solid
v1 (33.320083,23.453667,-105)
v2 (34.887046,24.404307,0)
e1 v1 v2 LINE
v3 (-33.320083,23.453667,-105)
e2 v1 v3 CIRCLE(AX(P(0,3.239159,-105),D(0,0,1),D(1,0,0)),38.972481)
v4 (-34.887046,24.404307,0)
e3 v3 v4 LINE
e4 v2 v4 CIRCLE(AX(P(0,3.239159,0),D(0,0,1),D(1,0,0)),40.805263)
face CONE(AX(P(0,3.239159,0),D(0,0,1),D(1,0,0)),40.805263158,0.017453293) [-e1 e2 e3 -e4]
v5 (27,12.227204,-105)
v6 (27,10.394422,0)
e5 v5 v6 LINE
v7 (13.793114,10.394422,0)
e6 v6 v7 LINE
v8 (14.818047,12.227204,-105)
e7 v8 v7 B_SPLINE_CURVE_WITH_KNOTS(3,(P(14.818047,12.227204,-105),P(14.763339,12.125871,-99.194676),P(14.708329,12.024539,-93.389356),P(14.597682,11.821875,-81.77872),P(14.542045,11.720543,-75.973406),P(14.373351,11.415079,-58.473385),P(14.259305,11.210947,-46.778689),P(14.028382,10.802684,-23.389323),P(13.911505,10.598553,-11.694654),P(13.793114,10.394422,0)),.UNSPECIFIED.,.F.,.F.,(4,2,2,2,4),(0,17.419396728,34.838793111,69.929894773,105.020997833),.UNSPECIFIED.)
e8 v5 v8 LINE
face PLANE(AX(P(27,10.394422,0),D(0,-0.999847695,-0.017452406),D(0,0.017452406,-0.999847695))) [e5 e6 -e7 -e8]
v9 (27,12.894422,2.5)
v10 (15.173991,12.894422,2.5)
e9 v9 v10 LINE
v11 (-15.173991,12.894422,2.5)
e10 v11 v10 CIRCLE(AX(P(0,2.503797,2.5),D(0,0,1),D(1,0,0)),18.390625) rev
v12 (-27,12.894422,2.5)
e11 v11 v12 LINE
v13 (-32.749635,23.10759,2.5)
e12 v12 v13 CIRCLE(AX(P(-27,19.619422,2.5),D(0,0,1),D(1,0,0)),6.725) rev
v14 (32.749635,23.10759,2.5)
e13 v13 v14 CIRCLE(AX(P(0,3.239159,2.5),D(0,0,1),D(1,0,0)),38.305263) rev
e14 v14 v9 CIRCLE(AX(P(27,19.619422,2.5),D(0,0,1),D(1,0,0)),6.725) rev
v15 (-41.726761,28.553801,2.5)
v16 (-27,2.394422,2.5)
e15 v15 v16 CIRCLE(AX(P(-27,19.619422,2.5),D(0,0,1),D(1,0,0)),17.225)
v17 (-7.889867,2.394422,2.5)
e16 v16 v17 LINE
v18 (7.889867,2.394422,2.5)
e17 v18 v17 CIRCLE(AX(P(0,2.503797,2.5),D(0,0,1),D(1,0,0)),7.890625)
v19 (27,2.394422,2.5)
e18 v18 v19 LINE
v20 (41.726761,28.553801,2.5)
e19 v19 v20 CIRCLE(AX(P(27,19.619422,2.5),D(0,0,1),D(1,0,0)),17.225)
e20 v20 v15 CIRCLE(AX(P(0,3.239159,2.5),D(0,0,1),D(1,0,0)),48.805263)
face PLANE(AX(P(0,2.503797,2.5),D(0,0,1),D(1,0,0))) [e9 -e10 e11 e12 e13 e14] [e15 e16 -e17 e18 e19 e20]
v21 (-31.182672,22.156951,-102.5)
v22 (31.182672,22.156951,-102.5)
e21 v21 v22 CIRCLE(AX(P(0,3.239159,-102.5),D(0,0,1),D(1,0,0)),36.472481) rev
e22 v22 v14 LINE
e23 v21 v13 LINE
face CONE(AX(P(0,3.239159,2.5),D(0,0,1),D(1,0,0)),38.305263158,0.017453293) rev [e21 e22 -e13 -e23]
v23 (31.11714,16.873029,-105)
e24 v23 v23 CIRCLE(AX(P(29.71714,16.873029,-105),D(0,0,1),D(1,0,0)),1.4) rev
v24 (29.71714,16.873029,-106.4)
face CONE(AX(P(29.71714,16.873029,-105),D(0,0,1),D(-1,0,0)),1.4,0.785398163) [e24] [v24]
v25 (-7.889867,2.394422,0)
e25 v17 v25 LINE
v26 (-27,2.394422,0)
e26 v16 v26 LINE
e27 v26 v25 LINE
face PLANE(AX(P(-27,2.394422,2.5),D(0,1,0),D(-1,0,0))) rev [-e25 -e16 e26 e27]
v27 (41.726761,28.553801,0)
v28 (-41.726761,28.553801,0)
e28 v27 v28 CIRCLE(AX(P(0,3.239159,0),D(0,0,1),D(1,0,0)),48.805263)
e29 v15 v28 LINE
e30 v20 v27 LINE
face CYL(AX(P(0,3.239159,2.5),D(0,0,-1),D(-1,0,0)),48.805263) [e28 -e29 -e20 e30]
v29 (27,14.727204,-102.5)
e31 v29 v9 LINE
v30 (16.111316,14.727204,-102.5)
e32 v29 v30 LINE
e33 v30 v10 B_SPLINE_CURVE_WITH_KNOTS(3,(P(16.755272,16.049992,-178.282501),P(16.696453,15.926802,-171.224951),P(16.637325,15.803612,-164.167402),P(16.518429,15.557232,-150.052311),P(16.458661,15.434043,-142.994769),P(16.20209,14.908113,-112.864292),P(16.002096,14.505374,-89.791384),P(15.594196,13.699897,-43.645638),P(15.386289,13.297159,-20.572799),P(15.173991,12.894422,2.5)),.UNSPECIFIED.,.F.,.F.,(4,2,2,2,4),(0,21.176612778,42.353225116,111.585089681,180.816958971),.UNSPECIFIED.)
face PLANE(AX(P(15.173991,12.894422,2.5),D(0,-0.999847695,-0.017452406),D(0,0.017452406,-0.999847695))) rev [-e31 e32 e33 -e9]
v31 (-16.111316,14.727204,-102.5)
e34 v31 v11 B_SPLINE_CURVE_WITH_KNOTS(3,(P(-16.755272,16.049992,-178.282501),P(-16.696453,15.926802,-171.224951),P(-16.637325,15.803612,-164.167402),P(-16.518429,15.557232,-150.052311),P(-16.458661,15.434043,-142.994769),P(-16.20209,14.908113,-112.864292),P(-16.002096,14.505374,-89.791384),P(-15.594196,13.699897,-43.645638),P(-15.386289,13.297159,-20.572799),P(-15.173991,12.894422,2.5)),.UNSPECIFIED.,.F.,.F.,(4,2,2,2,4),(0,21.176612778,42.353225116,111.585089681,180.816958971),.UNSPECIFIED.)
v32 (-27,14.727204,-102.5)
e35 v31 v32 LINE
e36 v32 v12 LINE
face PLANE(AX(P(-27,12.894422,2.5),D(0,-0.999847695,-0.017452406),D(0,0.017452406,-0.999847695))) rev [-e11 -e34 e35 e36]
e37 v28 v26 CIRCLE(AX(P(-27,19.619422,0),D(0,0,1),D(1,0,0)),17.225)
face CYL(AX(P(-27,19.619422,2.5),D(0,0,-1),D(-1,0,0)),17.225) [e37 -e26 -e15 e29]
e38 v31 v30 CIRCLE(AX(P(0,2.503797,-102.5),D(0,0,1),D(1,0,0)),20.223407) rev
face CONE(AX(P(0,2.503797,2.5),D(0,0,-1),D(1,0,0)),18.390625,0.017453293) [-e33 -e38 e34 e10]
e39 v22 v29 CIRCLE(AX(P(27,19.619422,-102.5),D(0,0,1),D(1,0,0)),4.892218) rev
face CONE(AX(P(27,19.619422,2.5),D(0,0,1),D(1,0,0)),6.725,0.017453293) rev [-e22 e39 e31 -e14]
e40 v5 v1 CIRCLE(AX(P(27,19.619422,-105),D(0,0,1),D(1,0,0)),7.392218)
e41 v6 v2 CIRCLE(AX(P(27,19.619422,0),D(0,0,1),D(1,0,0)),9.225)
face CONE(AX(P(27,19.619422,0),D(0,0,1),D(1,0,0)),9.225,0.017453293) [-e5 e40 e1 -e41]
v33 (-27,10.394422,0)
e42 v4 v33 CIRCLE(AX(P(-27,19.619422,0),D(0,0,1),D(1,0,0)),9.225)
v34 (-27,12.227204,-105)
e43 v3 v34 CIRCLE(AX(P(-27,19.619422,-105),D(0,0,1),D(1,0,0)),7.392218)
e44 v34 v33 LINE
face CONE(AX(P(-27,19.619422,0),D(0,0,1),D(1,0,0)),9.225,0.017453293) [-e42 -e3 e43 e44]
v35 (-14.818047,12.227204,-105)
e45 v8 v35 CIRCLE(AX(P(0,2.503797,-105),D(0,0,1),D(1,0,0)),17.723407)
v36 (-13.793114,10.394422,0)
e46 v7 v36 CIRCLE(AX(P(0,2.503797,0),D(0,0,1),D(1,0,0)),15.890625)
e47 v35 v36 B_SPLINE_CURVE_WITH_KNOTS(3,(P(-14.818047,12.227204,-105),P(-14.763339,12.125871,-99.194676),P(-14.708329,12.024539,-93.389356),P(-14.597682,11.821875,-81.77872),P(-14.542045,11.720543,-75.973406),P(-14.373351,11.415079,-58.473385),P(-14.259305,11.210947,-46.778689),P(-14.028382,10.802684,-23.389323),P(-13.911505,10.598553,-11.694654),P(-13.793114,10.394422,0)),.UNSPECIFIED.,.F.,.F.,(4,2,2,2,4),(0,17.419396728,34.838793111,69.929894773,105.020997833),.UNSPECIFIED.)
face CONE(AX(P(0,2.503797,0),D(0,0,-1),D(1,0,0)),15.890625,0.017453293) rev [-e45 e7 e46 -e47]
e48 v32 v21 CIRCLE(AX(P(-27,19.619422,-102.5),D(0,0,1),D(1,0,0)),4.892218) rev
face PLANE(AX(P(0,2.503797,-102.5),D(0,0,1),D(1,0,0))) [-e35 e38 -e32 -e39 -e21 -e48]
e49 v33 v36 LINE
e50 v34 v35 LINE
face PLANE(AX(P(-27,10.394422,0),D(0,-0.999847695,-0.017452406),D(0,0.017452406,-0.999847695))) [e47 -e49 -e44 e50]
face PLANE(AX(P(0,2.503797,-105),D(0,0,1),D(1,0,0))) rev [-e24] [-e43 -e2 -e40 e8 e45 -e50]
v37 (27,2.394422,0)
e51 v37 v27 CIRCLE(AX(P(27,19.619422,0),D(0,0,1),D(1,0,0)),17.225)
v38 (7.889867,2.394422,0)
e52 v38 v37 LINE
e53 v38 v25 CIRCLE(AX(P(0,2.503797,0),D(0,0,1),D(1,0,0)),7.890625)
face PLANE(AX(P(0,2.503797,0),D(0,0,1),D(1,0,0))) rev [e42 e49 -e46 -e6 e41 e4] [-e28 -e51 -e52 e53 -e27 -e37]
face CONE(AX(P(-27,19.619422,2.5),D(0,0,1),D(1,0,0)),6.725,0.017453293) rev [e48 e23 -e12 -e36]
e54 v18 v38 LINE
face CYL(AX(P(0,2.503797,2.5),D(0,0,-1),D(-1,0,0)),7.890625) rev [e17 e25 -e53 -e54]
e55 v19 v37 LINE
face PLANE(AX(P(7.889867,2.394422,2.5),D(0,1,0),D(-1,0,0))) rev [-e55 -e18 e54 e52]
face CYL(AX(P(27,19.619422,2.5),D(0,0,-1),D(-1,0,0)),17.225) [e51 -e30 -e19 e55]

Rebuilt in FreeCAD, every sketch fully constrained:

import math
import FreeCAD as App
import Part
import Sketcher
Q = App.Units.Quantity


def faces_at(feature, points):
    """Names of the faces that lie closest to the given points."""
    faces = feature.Shape.Faces
    near = lambda p: min(range(len(faces)), key=lambda i: faces[i].distToShape(Part.Vertex(*p))[0])
    return sorted({f"Face{near(p) + 1}" for p in points})


def add_polygon(sketch, points):
    """Adds a closed chain of lines whose ends are joined by coincident constraints."""
    first, n = sketch.GeometryCount, len(points)
    for a, b in zip(points, points[1:] + points[:1]):
        sketch.addGeometry(Part.LineSegment(App.Vector(*a, 0), App.Vector(*b, 0)), False)
    for i in range(n):
        sketch.addConstraint(Sketcher.Constraint("Coincident", first + i, 2, first + (i + 1) % n, 1))

doc = App.newDocument("Part")
body = doc.addObject("PartDesign::Body", "Body")

# Sketch on XY plane
sketch1 = body.newObject("Sketcher::SketchObject", "Sketch")
sketch1.AttachmentSupport = (doc.getObject("XY_Plane"), [""])
sketch1.MapMode = "FlatFace"
sketch1.addGeometry(Part.ArcOfCircle(Part.Circle(App.Vector(27, 19.619422, 0), App.Vector(0, 0, 1), 9.225), math.radians(-90), math.radians(31.244201)), False)
sketch1.addGeometry(Part.ArcOfCircle(Part.Circle(App.Vector(0, 3.239159, 0), App.Vector(0, 0, 1), 40.805263), math.radians(31.244201), math.radians(148.755799)), False)
sketch1.addGeometry(Part.ArcOfCircle(Part.Circle(App.Vector(-27, 19.619422, 0), App.Vector(0, 0, 1), 9.225), math.radians(148.755799), math.radians(270)), False)
sketch1.addGeometry(Part.LineSegment(App.Vector(-27, 10.394422, 0), App.Vector(-13.793114, 10.394422, 0)), False)
sketch1.addGeometry(Part.ArcOfCircle(Part.Circle(App.Vector(0, 2.503797, 0), App.Vector(0, 0, 1), 15.890625), math.radians(29.772573), math.radians(150.227427)), False)
sketch1.addGeometry(Part.LineSegment(App.Vector(13.793114, 10.394422, 0), App.Vector(27, 10.394422, 0)), False)
sketch1.addConstraint(Sketcher.Constraint("Tangent", 0, 2, 1, 1))
sketch1.addConstraint(Sketcher.Constraint("Tangent", 1, 2, 2, 1))
sketch1.addConstraint(Sketcher.Constraint("Tangent", 2, 2, 3, 1))
sketch1.addConstraint(Sketcher.Constraint("Coincident", 3, 2, 4, 2))
sketch1.addConstraint(Sketcher.Constraint("Coincident", 4, 1, 5, 1))
sketch1.addConstraint(Sketcher.Constraint("Tangent", 5, 2, 0, 1))
sketch1.addConstraint(Sketcher.Constraint("Horizontal", 3))
sketch1.addConstraint(Sketcher.Constraint("Horizontal", 5))
sketch1.addConstraint(Sketcher.Constraint("Equal", 0, 2))
sketch1.addConstraint(Sketcher.Constraint("Symmetric", 0, 3, 2, 3, -2))
sketch1.addConstraint(Sketcher.Constraint("PointOnObject", 4, 3, -2))
sketch1.addConstraint(Sketcher.Constraint("DistanceX", -1, 1, 0, 3, Q("27 mm")))
sketch1.addConstraint(Sketcher.Constraint("Radius", 0, Q("9.225 mm")))
sketch1.addConstraint(Sketcher.Constraint("Radius", 1, Q("40.805263 mm")))
sketch1.addConstraint(Sketcher.Constraint("Radius", 4, Q("15.890625 mm")))
sketch1.addConstraint(Sketcher.Constraint("DistanceX", 3, 1, 3, 2, Q("13.206886 mm")))
sketch1.addConstraint(Sketcher.Constraint("DistanceY", -1, 1, 0, 3, Q("19.619422 mm")))
pad1 = body.newObject("PartDesign::Pad", "Pad")
pad1.Profile = sketch1
pad1.Length = 105
pad1.Reversed = True
doc.recompute()

draft = body.newObject("PartDesign::Draft", "Draft")
draft.Base = (pad1, faces_at(pad1, [
    (20.397, 10.394, -52.5),
    (35.039, 15.094, -52.5),
    (0, 44.044, -52.5),
    (-35.039, 15.094, -52.5),
    (-20.397, 10.394, -52.5),
    (0, 18.394, -52.5),
]))
draft.NeutralPlane = (doc.getObject("XY_Plane"), [""])
draft.Angle = 1
draft.Reversed = True

# Sketch on XY plane
sketch2 = body.newObject("Sketcher::SketchObject", "Sketch001")
sketch2.AttachmentSupport = (doc.getObject("XY_Plane"), [""])
sketch2.MapMode = "FlatFace"
sketch2.addGeometry(Part.LineSegment(App.Vector(7.889867, 2.394422, 0), App.Vector(27, 2.394422, 0)), False)
sketch2.addGeometry(Part.ArcOfCircle(Part.Circle(App.Vector(27, 19.619422, 0), App.Vector(0, 0, 1), 17.225), math.radians(-90), math.radians(31.244201)), False)
sketch2.addGeometry(Part.ArcOfCircle(Part.Circle(App.Vector(0, 3.239159, 0), App.Vector(0, 0, 1), 48.805263), math.radians(31.244201), math.radians(148.755799)), False)
sketch2.addGeometry(Part.ArcOfCircle(Part.Circle(App.Vector(-27, 19.619422, 0), App.Vector(0, 0, 1), 17.225), math.radians(148.755799), math.radians(270)), False)
sketch2.addGeometry(Part.LineSegment(App.Vector(-27, 2.394422, 0), App.Vector(-7.889867, 2.394422, 0)), False)
sketch2.addGeometry(Part.ArcOfCircle(Part.Circle(App.Vector(0, 2.503797, 0), App.Vector(0, 0, 1), 7.890625), math.radians(-0.794224), math.radians(180.794224)), False)
sketch2.addConstraint(Sketcher.Constraint("Tangent", 0, 2, 1, 1))
sketch2.addConstraint(Sketcher.Constraint("Tangent", 1, 2, 2, 1))
sketch2.addConstraint(Sketcher.Constraint("Tangent", 2, 2, 3, 1))
sketch2.addConstraint(Sketcher.Constraint("Tangent", 3, 2, 4, 1))
sketch2.addConstraint(Sketcher.Constraint("Coincident", 4, 2, 5, 2))
sketch2.addConstraint(Sketcher.Constraint("Coincident", 5, 1, 0, 1))
sketch2.addConstraint(Sketcher.Constraint("Horizontal", 0))
sketch2.addConstraint(Sketcher.Constraint("Horizontal", 4))
sketch2.addConstraint(Sketcher.Constraint("Equal", 1, 3))
sketch2.addConstraint(Sketcher.Constraint("Symmetric", 1, 3, 3, 3, -2))
sketch2.addConstraint(Sketcher.Constraint("PointOnObject", 5, 3, -2))
sketch2.addConstraint(Sketcher.Constraint("DistanceX", -1, 1, 1, 3, Q("27 mm")))
sketch2.addConstraint(Sketcher.Constraint("Radius", 1, Q("17.225 mm")))
sketch2.addConstraint(Sketcher.Constraint("Radius", 2, Q("48.805263 mm")))
sketch2.addConstraint(Sketcher.Constraint("Radius", 5, Q("7.890625 mm")))
sketch2.addConstraint(Sketcher.Constraint("DistanceY", -1, 1, 1, 2, Q("28.553801 mm")))
sketch2.addConstraint(Sketcher.Constraint("DistanceX", 0, 1, 0, 2, Q("19.110133 mm")))
pad2 = body.newObject("PartDesign::Pad", "Pad001")
pad2.Profile = sketch2
pad2.Length = 2.5
body2 = doc.addObject("PartDesign::Body", "Body001")

# Sketch on XY plane
sketch3 = body2.newObject("Sketcher::SketchObject", "Sketch002")
sketch3.AttachmentSupport = (doc.getObject("XY_Plane001"), [""])
sketch3.MapMode = "FlatFace"
sketch3.AttachmentOffset = App.Placement(App.Vector(0, 0, 2.5), App.Rotation())
sketch3.addGeometry(Part.LineSegment(App.Vector(-27, 12.894422, 0), App.Vector(-15.173991, 12.894422, 0)), False)
sketch3.addGeometry(Part.ArcOfCircle(Part.Circle(App.Vector(0, 2.503797, 0), App.Vector(0, 0, 1), 18.390625), math.radians(34.401996), math.radians(145.598004)), False)
sketch3.addGeometry(Part.LineSegment(App.Vector(15.173991, 12.894422, 0), App.Vector(27, 12.894422, 0)), False)
sketch3.addGeometry(Part.ArcOfCircle(Part.Circle(App.Vector(27, 19.619422, 0), App.Vector(0, 0, 1), 6.725), math.radians(-90), math.radians(31.244201)), False)
sketch3.addGeometry(Part.ArcOfCircle(Part.Circle(App.Vector(0, 3.239159, 0), App.Vector(0, 0, 1), 38.305263), math.radians(31.244201), math.radians(148.755799)), False)
sketch3.addGeometry(Part.ArcOfCircle(Part.Circle(App.Vector(-27, 19.619422, 0), App.Vector(0, 0, 1), 6.725), math.radians(148.755799), math.radians(270)), False)
sketch3.addConstraint(Sketcher.Constraint("Coincident", 0, 2, 1, 2))
sketch3.addConstraint(Sketcher.Constraint("Coincident", 1, 1, 2, 1))
sketch3.addConstraint(Sketcher.Constraint("Tangent", 2, 2, 3, 1))
sketch3.addConstraint(Sketcher.Constraint("Tangent", 3, 2, 4, 1))
sketch3.addConstraint(Sketcher.Constraint("Tangent", 4, 2, 5, 1))
sketch3.addConstraint(Sketcher.Constraint("Tangent", 5, 2, 0, 1))
sketch3.addConstraint(Sketcher.Constraint("Horizontal", 0))
sketch3.addConstraint(Sketcher.Constraint("Horizontal", 2))
sketch3.addConstraint(Sketcher.Constraint("Equal", 3, 5))
sketch3.addConstraint(Sketcher.Constraint("Symmetric", 3, 3, 5, 3, -2))
sketch3.addConstraint(Sketcher.Constraint("PointOnObject", 1, 3, -2))
sketch3.addConstraint(Sketcher.Constraint("DistanceX", -1, 1, 3, 3, Q("27 mm")))
sketch3.addConstraint(Sketcher.Constraint("Radius", 3, Q("6.725 mm")))
sketch3.addConstraint(Sketcher.Constraint("Radius", 1, Q("18.390625 mm")))
sketch3.addConstraint(Sketcher.Constraint("Radius", 4, Q("38.305263 mm")))
sketch3.addConstraint(Sketcher.Constraint("DistanceX", 0, 1, 0, 2, Q("11.826009 mm")))
sketch3.addConstraint(Sketcher.Constraint("DistanceY", -1, 1, 3, 3, Q("19.619422 mm")))
pad3 = body2.newObject("PartDesign::Pad", "Pad002")
pad3.Profile = sketch3
pad3.Length = 105
pad3.Reversed = True
doc.recompute()

datumplane = body2.newObject("PartDesign::Plane", "DatumPlane")
datumplane.AttachmentSupport = (doc.getObject("XY_Plane001"), [""])
datumplane.MapMode = "FlatFace"
datumplane.AttachmentOffset = App.Placement(App.Vector(0, 0, 2.5), App.Rotation())
draft2 = body2.newObject("PartDesign::Draft", "Draft001")
draft2.Base = (pad3, faces_at(pad3, [
    (-21.087, 12.894, -50),
    (0, 20.894, -50),
    (21.087, 12.894, -50),
    (32.86, 16.32, -50),
    (0, 41.544, -50),
    (-32.86, 16.32, -50),
]))
draft2.NeutralPlane = (datumplane, [""])
draft2.Angle = 1
draft2.Reversed = True
doc.recompute()

boolean = body.newObject("PartDesign::Boolean", "Boolean")
boolean.Type = "Cut"
boolean.addObjects([body2])

# Sketch on YZ plane
sketch4 = body.newObject("Sketcher::SketchObject", "Sketch003")
sketch4.AttachmentSupport = (doc.getObject("YZ_Plane"), [""])
sketch4.MapMode = "FlatFace"
sketch4.AttachmentOffset = App.Placement(App.Vector(0, 0, 29.71714), App.Rotation())
add_polygon(sketch4, [(16.873029, -105), (15.473029, -105), (16.873029, -106.4)])  # lines 0-2
sketch4.addGeometry(Part.LineSegment(App.Vector(16.873029, -105, 0), App.Vector(16.873029, -106.4, 0)), True)  # axis
sketch4.addConstraint(Sketcher.Constraint("Horizontal", 0))
sketch4.addConstraint(Sketcher.Constraint("Vertical", 2))
sketch4.addConstraint(Sketcher.Constraint("Vertical", 3))
sketch4.addConstraint(Sketcher.Constraint("Coincident", 3, 1, 2, 2))
sketch4.addConstraint(Sketcher.Constraint("Equal", 0, 2))
sketch4.addConstraint(Sketcher.Constraint("Equal", 2, 3))
sketch4.addConstraint(Sketcher.Constraint("DistanceX", 0, 2, 0, 1, Q("1.4 mm")))
sketch4.addConstraint(Sketcher.Constraint("DistanceY", 0, 2, -1, 1, Q("105 mm")))
sketch4.addConstraint(Sketcher.Constraint("DistanceX", -1, 1, 0, 2, Q("15.473029 mm")))
revolution = body.newObject("PartDesign::Revolution", "Revolution")
revolution.Profile = sketch4
revolution.ReferenceAxis = (sketch4, ["Axis0"])
revolution.Angle = 360

doc.recompute()
